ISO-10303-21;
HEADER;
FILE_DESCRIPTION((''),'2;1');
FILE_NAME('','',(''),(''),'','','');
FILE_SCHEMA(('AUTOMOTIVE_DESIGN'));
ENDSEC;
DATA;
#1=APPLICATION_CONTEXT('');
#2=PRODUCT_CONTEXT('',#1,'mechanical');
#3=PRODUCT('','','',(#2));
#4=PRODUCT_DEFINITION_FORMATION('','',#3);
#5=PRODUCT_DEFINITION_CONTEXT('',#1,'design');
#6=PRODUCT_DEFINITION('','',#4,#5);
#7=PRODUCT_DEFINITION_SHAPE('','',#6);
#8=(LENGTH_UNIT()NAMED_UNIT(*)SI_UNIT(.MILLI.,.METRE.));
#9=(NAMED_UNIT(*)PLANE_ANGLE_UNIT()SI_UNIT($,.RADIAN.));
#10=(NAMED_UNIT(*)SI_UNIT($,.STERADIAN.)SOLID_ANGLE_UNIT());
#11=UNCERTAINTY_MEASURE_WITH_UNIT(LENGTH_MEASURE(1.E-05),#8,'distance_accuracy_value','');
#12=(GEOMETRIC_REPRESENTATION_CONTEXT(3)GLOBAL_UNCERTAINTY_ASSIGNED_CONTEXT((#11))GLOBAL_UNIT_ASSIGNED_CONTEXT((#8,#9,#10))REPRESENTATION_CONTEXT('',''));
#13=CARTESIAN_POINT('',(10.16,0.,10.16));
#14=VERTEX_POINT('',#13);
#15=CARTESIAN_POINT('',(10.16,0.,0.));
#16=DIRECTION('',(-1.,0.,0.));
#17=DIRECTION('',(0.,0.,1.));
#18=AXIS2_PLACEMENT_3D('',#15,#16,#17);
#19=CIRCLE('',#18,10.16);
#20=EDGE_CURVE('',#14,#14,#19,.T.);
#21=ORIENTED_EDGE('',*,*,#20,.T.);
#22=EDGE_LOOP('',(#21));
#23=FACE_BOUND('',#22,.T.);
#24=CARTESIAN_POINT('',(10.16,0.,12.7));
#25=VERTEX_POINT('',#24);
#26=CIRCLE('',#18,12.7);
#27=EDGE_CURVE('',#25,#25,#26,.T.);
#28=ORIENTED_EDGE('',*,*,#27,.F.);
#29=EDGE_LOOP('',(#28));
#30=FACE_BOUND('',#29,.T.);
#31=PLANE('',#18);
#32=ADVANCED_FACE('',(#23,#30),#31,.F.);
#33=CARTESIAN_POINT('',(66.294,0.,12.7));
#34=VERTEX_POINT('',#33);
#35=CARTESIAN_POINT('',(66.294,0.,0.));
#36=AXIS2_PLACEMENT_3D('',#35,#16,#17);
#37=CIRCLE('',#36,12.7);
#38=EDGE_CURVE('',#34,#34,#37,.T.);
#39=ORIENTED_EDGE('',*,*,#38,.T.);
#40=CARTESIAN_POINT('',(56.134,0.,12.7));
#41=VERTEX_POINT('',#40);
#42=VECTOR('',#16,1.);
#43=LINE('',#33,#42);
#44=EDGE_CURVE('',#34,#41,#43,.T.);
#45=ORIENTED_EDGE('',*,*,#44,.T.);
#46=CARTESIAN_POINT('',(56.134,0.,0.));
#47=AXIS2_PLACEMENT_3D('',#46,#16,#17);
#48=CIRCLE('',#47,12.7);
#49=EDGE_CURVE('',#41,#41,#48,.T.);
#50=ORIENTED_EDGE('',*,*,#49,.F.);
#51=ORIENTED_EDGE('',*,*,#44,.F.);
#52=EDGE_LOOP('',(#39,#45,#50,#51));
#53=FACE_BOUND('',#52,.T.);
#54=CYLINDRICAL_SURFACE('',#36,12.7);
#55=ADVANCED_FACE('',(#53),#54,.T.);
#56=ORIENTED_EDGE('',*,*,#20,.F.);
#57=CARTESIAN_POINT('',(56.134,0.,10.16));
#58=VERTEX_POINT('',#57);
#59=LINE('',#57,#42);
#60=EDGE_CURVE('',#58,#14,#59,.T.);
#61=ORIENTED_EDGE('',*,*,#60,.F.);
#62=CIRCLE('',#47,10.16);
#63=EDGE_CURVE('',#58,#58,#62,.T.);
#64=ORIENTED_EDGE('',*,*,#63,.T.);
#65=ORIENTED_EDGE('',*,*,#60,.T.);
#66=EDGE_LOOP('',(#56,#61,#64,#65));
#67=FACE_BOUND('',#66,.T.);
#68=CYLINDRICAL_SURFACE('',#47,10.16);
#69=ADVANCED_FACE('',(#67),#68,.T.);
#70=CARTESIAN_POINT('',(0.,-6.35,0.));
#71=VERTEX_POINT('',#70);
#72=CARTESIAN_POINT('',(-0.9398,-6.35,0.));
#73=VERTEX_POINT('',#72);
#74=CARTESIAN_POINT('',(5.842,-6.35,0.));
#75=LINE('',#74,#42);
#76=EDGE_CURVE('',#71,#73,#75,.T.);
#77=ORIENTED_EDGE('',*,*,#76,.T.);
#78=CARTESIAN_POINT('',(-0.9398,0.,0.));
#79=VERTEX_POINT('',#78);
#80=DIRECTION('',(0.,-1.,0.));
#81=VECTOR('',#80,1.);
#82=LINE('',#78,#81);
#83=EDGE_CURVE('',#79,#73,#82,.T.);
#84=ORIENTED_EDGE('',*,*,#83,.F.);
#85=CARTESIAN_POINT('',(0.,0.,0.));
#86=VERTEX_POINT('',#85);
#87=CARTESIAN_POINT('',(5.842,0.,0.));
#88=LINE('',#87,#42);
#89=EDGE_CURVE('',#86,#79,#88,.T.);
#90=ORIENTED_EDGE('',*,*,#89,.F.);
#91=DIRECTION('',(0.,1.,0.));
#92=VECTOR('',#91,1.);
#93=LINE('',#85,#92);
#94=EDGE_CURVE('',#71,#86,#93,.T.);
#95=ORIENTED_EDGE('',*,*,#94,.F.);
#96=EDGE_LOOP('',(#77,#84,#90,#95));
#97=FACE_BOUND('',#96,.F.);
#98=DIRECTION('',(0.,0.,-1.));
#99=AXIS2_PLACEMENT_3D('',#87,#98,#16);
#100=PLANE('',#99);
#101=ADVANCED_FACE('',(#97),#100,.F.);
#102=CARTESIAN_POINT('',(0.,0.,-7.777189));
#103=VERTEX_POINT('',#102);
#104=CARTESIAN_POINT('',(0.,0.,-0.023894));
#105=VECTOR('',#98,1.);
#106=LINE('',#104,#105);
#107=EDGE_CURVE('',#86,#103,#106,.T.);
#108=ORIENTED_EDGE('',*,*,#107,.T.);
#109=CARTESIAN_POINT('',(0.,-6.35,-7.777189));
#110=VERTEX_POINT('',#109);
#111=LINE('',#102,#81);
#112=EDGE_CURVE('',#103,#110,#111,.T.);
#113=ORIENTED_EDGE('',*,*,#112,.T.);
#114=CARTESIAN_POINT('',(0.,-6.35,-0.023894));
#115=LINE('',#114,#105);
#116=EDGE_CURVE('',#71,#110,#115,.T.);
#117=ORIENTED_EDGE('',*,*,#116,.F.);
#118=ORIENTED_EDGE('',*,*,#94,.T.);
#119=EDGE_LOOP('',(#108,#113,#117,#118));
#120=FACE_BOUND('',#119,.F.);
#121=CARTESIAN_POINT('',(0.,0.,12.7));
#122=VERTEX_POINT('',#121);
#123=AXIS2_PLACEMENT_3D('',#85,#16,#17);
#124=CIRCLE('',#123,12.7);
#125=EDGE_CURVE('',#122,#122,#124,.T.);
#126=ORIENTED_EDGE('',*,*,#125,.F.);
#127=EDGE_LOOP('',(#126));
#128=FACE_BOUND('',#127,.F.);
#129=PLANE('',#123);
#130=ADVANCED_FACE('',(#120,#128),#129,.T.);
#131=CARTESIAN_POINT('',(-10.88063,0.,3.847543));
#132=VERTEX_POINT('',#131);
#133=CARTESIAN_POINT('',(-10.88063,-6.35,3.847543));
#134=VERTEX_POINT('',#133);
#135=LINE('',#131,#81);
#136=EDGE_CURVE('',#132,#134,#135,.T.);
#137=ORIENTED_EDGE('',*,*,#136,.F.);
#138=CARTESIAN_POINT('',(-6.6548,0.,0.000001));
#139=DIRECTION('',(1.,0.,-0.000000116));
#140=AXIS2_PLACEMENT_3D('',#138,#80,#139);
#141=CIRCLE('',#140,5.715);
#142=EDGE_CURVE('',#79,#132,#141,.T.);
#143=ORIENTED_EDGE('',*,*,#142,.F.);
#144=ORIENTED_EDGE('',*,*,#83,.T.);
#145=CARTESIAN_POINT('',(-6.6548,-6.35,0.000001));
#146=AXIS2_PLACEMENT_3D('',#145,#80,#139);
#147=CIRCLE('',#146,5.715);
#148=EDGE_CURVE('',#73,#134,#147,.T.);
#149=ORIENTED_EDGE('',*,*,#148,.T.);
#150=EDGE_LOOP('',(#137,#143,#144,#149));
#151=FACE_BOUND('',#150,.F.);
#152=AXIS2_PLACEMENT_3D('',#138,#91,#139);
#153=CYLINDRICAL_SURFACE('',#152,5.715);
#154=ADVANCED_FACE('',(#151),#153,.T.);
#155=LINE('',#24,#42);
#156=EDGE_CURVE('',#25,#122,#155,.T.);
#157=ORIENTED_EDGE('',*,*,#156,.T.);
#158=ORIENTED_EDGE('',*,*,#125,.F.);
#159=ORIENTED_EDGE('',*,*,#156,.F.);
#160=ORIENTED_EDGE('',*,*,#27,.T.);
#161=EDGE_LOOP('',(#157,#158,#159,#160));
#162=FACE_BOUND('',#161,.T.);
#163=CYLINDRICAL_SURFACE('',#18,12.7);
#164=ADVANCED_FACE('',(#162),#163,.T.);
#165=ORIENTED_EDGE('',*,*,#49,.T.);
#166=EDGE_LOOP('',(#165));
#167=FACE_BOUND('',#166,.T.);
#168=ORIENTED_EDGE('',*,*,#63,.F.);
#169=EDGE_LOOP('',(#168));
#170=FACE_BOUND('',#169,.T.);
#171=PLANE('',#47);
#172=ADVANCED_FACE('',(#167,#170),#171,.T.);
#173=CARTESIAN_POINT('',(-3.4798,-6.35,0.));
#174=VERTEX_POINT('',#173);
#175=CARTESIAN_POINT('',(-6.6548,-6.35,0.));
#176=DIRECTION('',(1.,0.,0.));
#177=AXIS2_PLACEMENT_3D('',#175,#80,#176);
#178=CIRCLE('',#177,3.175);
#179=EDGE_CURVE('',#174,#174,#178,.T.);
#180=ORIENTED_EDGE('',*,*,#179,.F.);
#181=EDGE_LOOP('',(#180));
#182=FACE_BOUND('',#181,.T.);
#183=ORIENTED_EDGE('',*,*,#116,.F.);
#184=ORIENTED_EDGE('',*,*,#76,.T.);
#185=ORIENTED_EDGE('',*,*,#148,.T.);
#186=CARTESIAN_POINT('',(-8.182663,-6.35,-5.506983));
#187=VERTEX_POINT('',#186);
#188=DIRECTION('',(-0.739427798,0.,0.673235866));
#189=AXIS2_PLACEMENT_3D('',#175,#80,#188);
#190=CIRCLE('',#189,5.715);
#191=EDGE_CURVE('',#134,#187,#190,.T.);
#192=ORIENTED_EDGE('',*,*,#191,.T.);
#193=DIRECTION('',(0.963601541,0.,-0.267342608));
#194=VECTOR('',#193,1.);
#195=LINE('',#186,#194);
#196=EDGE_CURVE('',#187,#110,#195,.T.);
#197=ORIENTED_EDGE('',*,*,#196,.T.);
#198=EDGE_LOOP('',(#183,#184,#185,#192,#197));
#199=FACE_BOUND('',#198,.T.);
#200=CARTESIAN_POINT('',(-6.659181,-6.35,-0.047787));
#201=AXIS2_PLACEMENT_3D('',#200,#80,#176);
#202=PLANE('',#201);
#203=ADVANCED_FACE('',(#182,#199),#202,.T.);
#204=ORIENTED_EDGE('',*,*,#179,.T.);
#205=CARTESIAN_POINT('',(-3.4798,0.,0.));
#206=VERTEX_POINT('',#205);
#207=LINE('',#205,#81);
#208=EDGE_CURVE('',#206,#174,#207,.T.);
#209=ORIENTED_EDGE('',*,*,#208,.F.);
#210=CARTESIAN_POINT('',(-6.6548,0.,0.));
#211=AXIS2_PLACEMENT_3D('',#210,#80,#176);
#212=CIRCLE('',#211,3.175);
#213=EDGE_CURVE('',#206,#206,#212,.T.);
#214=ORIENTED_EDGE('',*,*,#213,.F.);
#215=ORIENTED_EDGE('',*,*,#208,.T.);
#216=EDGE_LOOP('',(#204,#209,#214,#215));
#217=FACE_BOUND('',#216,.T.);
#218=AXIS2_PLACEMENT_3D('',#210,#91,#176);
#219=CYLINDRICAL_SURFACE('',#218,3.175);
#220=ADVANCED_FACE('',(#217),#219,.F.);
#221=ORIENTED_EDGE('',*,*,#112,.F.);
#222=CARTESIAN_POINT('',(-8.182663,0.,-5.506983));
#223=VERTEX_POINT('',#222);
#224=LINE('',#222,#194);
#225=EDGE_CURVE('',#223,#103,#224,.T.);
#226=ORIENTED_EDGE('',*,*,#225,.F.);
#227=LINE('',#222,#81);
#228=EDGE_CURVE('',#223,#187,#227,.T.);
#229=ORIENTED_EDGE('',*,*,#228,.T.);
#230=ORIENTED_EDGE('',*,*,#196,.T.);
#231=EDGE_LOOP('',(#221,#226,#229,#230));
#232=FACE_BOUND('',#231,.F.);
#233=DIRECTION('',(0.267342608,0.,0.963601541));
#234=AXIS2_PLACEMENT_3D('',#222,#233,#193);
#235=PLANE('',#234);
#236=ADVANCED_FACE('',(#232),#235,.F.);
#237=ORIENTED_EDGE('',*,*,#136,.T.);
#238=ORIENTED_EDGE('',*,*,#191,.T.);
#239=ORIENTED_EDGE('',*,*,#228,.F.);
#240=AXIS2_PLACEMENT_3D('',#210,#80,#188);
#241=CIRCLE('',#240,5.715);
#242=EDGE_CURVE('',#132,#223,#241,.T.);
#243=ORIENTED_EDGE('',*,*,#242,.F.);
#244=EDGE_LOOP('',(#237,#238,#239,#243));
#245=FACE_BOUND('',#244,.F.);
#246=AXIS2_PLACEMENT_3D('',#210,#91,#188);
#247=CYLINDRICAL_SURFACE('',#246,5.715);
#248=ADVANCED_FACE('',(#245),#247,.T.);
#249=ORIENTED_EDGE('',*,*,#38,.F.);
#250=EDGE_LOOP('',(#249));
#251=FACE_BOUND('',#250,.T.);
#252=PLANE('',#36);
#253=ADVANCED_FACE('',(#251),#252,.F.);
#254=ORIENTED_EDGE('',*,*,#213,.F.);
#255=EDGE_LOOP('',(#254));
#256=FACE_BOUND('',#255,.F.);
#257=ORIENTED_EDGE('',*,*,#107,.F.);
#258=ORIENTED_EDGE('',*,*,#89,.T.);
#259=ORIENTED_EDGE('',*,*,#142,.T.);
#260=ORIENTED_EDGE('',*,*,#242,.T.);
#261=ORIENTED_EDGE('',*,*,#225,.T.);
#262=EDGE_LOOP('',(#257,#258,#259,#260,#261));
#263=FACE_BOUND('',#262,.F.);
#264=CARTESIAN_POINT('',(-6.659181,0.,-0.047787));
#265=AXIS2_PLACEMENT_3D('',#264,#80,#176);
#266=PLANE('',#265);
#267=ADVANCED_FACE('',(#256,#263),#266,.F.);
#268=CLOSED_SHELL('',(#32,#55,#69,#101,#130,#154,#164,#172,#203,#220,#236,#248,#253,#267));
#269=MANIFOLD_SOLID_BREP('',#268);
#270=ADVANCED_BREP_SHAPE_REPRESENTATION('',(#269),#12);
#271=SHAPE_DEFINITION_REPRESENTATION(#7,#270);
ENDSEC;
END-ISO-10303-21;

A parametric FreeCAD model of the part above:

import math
import FreeCAD as App
import Part
import Sketcher
Q = App.Units.Quantity

doc = App.newDocument("Part")
params = doc.addObject("Spreadsheet::Sheet", "Params")
for row, (alias, value) in enumerate([
    ("sketch1_height", "0.5 in"),
    ("sketch1_width", "0.23 in"),
    ("revolution_angle", "360 deg"),
    ("sketch2_width", "0.4 in"),
    ("sketch2_height", "0.5 in"),
    ("sketch2_height2", "0.1 in"),
    ("sketch2_width2", "2.38 in"),
    ("sketch2_width3", "1.81 in"),
    ("revolution2_angle", "360 deg"),
    ("sketch3_diameter", "0.25 in"),
    ("sketch3_radius", "0.225 in"),
    ("sketch3_height", "0.37 in"),
    ("sketch3_width", "0.267 in"),
    ("pad1_length", "0.25 in"),
], start=1):
    params.set(f"A{row}", alias)
    params.set(f"B{row}", "=" + value)
    params.setAlias(f"B{row}", alias)

body = doc.addObject("PartDesign::Body", "Body")

# Sketch on XZ plane
sketch1 = body.newObject("Sketcher::SketchObject", "Sketch")
sketch1.AttachmentSupport = (doc.getObject("XZ_Plane"), [""])
sketch1.MapMode = "FlatFace"
sketch1.addGeometry(Part.LineSegment(App.Vector(0, 13, 0), App.Vector(0, 0, 0)), False)
sketch1.addGeometry(Part.LineSegment(App.Vector(0, 0, 0), App.Vector(6, 0, 0)), False)
sketch1.addGeometry(Part.LineSegment(App.Vector(6, 0, 0), App.Vector(6, 13, 0)), False)
sketch1.addGeometry(Part.LineSegment(App.Vector(6, 13, 0), App.Vector(0, 13, 0)), False)
sketch1.addConstraint(Sketcher.Constraint("Coincident", 0, 2, 1, 1))
sketch1.addConstraint(Sketcher.Constraint("Coincident", 1, 2, 2, 1))
sketch1.addConstraint(Sketcher.Constraint("Coincident", 2, 2, 3, 1))
sketch1.addConstraint(Sketcher.Constraint("Coincident", 3, 2, 0, 1))
sketch1.addConstraint(Sketcher.Constraint("Vertical", 0))
sketch1.addConstraint(Sketcher.Constraint("Horizontal", 1))
sketch1.addConstraint(Sketcher.Constraint("Vertical", 2))
sketch1.addConstraint(Sketcher.Constraint("Horizontal", 3))
sketch1.addConstraint(Sketcher.Constraint("Coincident", 0, 2, -1, 1))
sketch1.addConstraint(Sketcher.Constraint("DistanceY", 0, 2, 0, 1, Q("0.5 in")))
sketch1.addConstraint(Sketcher.Constraint("DistanceX", 1, 1, 1, 2, Q("0.23 in")))
sketch1.setExpression("Constraints[9]", "Params.sketch1_height")
sketch1.setExpression("Constraints[10]", "Params.sketch1_width")
revolution = body.newObject("PartDesign::Revolution", "Revolution")
revolution.Profile = sketch1
revolution.ReferenceAxis = (sketch1, ["H_Axis"])
revolution.setExpression("Angle", "Params.revolution_angle")

# Sketch on XZ plane
sketch2 = body.newObject("Sketcher::SketchObject", "Sketch001")
sketch2.AttachmentSupport = (doc.getObject("XZ_Plane"), [""])
sketch2.MapMode = "FlatFace"
sketch2.addGeometry(Part.LineSegment(App.Vector(5.8, 12.7, 0), App.Vector(5.8, 0, 0)), False)
sketch2.addGeometry(Part.LineSegment(App.Vector(5.8, 0, 0), App.Vector(66.3, 0, 0)), False)
sketch2.addGeometry(Part.LineSegment(App.Vector(66.3, 0, 0), App.Vector(66.3, 12.7, 0)), False)
sketch2.addGeometry(Part.LineSegment(App.Vector(66.3, 12.7, 0), App.Vector(56.1, 12.7, 0)), False)
sketch2.addGeometry(Part.LineSegment(App.Vector(56.1, 12.7, 0), App.Vector(56.1, 10.2, 0)), False)
sketch2.addGeometry(Part.LineSegment(App.Vector(56.1, 10.2, 0), App.Vector(10.2, 10.2, 0)), False)
sketch2.addGeometry(Part.LineSegment(App.Vector(10.2, 10.2, 0), App.Vector(10.2, 12.7, 0)), False)
sketch2.addGeometry(Part.LineSegment(App.Vector(10.2, 12.7, 0), App.Vector(5.8, 12.7, 0)), False)
sketch2.addConstraint(Sketcher.Constraint("Coincident", 0, 2, 1, 1))
sketch2.addConstraint(Sketcher.Constraint("Coincident", 1, 2, 2, 1))
sketch2.addConstraint(Sketcher.Constraint("Coincident", 2, 2, 3, 1))
sketch2.addConstraint(Sketcher.Constraint("Coincident", 3, 2, 4, 1))
sketch2.addConstraint(Sketcher.Constraint("Coincident", 4, 2, 5, 1))
sketch2.addConstraint(Sketcher.Constraint("Coincident", 5, 2, 6, 1))
sketch2.addConstraint(Sketcher.Constraint("Coincident", 6, 2, 7, 1))
sketch2.addConstraint(Sketcher.Constraint("Coincident", 7, 2, 0, 1))
sketch2.addConstraint(Sketcher.Constraint("Vertical", 0))
sketch2.addConstraint(Sketcher.Constraint("Horizontal", 1))
sketch2.addConstraint(Sketcher.Constraint("Vertical", 2))
sketch2.addConstraint(Sketcher.Constraint("Horizontal", 3))
sketch2.addConstraint(Sketcher.Constraint("Vertical", 4))
sketch2.addConstraint(Sketcher.Constraint("Horizontal", 5))
sketch2.addConstraint(Sketcher.Constraint("Vertical", 6))
sketch2.addConstraint(Sketcher.Constraint("Horizontal", 7))
sketch2.addConstraint(Sketcher.Constraint("PointOnObject", 0, 2, -1))
sketch2.addConstraint(Sketcher.Constraint("Horizontal", 3, 2, 6, 2))
sketch2.addConstraint(Sketcher.Constraint("DistanceX", 3, 2, 3, 1, Q("0.4 in")))
sketch2.addConstraint(Sketcher.Constraint("DistanceY", 0, 2, 0, 1, Q("0.5 in")))
sketch2.addConstraint(Sketcher.Constraint("DistanceY", 4, 2, 4, 1, Q("0.1 in")))
sketch2.addConstraint(Sketcher.Constraint("DistanceX", 1, 1, 1, 2, Q("2.38 in")))
sketch2.addConstraint(Sketcher.Constraint("DistanceX", 5, 2, 5, 1, Q("1.81 in")))
sketch2.addConstraint(Sketcher.Constraint("DistanceX", -1, 1, 5, 2, Q("0.4 in")))
sketch2.setExpression("Constraints[18]", "Params.sketch2_width")
sketch2.setExpression("Constraints[19]", "Params.sketch2_height")
sketch2.setExpression("Constraints[20]", "Params.sketch2_height2")
sketch2.setExpression("Constraints[21]", "Params.sketch2_width2")
sketch2.setExpression("Constraints[22]", "Params.sketch2_width3")
revolution2 = body.newObject("PartDesign::Revolution", "Revolution001")
revolution2.Profile = sketch2
revolution2.ReferenceAxis = (sketch2, ["H_Axis"])
revolution2.setExpression("Angle", "Params.revolution2_angle")

# Sketch on XZ plane
sketch3 = body.newObject("Sketcher::SketchObject", "Sketch002")
sketch3.AttachmentSupport = (doc.getObject("XZ_Plane"), [""])
sketch3.MapMode = "FlatFace"
sketch3.addGeometry(Part.ArcOfCircle(Part.Circle(App.Vector(-6.7, 0, 0), App.Vector(0, 0, 1), 5.7), math.radians(138), math.radians(254)), False)
sketch3.addGeometry(Part.LineSegment(App.Vector(-8.2, -5.5, 0), App.Vector(5.8, -9.4, 0)), False)
sketch3.addGeometry(Part.LineSegment(App.Vector(5.8, -9.4, 0), App.Vector(5.8, 0, 0)), False)
sketch3.addGeometry(Part.LineSegment(App.Vector(5.8, 0, 0), App.Vector(-0.9, 0, 0)), False)
sketch3.addGeometry(Part.ArcOfCircle(Part.Circle(App.Vector(-6.7, 0, 0), App.Vector(0, 0, 1), 5.7), math.radians(0), math.radians(138)), False)
sketch3.addGeometry(Part.Circle(App.Vector(-6.7, 0, 0), App.Vector(0, 0, 1), 3.2), False)
sketch3.addConstraint(Sketcher.Constraint("Tangent", 0, 2, 1, 1))
sketch3.addConstraint(Sketcher.Constraint("Coincident", 1, 2, 2, 1))
sketch3.addConstraint(Sketcher.Constraint("Coincident", 2, 2, 3, 1))
sketch3.addConstraint(Sketcher.Constraint("Coincident", 3, 2, 4, 1))
sketch3.addConstraint(Sketcher.Constraint("Tangent", 4, 2, 0, 1))
sketch3.addConstraint(Sketcher.Constraint("Vertical", 2))
sketch3.addConstraint(Sketcher.Constraint("Horizontal", 3))
sketch3.addConstraint(Sketcher.Constraint("Coincident", 5, 3, 0, 3))
sketch3.addConstraint(Sketcher.Constraint("Equal", 0, 4))
sketch3.addConstraint(Sketcher.Constraint("PointOnObject", 0, 3, -1))
sketch3.addConstraint(Sketcher.Constraint("PointOnObject", 2, 2, -1))
sketch3.addConstraint(Sketcher.Constraint("Diameter", 5, Q("0.25 in")))
sketch3.addConstraint(Sketcher.Constraint("Radius", 0, Q("0.225 in")))
sketch3.addConstraint(Sketcher.Constraint("DistanceY", 2, 1, 2, 2, Q("0.37 in")))
sketch3.addConstraint(Sketcher.Constraint("DistanceX", 3, 2, 3, 1, Q("0.267 in")))
sketch3.addConstraint(Sketcher.Constraint("DistanceX", -1, 1, 1, 2, Q("0.23 in")))
sketch3.addConstraint(Sketcher.Constraint("DistanceX", 4, 2, -1, 1, 10.88063))
sketch3.setExpression("Constraints[11]", "Params.sketch3_diameter")
sketch3.setExpression("Constraints[12]", "Params.sketch3_radius")
sketch3.setExpression("Constraints[13]", "Params.sketch3_height")
sketch3.setExpression("Constraints[14]", "Params.sketch3_width")
pad1 = body.newObject("PartDesign::Pad", "Pad")
pad1.Profile = sketch3
pad1.setExpression("Length", "Params.pad1_length")

doc.recompute()
